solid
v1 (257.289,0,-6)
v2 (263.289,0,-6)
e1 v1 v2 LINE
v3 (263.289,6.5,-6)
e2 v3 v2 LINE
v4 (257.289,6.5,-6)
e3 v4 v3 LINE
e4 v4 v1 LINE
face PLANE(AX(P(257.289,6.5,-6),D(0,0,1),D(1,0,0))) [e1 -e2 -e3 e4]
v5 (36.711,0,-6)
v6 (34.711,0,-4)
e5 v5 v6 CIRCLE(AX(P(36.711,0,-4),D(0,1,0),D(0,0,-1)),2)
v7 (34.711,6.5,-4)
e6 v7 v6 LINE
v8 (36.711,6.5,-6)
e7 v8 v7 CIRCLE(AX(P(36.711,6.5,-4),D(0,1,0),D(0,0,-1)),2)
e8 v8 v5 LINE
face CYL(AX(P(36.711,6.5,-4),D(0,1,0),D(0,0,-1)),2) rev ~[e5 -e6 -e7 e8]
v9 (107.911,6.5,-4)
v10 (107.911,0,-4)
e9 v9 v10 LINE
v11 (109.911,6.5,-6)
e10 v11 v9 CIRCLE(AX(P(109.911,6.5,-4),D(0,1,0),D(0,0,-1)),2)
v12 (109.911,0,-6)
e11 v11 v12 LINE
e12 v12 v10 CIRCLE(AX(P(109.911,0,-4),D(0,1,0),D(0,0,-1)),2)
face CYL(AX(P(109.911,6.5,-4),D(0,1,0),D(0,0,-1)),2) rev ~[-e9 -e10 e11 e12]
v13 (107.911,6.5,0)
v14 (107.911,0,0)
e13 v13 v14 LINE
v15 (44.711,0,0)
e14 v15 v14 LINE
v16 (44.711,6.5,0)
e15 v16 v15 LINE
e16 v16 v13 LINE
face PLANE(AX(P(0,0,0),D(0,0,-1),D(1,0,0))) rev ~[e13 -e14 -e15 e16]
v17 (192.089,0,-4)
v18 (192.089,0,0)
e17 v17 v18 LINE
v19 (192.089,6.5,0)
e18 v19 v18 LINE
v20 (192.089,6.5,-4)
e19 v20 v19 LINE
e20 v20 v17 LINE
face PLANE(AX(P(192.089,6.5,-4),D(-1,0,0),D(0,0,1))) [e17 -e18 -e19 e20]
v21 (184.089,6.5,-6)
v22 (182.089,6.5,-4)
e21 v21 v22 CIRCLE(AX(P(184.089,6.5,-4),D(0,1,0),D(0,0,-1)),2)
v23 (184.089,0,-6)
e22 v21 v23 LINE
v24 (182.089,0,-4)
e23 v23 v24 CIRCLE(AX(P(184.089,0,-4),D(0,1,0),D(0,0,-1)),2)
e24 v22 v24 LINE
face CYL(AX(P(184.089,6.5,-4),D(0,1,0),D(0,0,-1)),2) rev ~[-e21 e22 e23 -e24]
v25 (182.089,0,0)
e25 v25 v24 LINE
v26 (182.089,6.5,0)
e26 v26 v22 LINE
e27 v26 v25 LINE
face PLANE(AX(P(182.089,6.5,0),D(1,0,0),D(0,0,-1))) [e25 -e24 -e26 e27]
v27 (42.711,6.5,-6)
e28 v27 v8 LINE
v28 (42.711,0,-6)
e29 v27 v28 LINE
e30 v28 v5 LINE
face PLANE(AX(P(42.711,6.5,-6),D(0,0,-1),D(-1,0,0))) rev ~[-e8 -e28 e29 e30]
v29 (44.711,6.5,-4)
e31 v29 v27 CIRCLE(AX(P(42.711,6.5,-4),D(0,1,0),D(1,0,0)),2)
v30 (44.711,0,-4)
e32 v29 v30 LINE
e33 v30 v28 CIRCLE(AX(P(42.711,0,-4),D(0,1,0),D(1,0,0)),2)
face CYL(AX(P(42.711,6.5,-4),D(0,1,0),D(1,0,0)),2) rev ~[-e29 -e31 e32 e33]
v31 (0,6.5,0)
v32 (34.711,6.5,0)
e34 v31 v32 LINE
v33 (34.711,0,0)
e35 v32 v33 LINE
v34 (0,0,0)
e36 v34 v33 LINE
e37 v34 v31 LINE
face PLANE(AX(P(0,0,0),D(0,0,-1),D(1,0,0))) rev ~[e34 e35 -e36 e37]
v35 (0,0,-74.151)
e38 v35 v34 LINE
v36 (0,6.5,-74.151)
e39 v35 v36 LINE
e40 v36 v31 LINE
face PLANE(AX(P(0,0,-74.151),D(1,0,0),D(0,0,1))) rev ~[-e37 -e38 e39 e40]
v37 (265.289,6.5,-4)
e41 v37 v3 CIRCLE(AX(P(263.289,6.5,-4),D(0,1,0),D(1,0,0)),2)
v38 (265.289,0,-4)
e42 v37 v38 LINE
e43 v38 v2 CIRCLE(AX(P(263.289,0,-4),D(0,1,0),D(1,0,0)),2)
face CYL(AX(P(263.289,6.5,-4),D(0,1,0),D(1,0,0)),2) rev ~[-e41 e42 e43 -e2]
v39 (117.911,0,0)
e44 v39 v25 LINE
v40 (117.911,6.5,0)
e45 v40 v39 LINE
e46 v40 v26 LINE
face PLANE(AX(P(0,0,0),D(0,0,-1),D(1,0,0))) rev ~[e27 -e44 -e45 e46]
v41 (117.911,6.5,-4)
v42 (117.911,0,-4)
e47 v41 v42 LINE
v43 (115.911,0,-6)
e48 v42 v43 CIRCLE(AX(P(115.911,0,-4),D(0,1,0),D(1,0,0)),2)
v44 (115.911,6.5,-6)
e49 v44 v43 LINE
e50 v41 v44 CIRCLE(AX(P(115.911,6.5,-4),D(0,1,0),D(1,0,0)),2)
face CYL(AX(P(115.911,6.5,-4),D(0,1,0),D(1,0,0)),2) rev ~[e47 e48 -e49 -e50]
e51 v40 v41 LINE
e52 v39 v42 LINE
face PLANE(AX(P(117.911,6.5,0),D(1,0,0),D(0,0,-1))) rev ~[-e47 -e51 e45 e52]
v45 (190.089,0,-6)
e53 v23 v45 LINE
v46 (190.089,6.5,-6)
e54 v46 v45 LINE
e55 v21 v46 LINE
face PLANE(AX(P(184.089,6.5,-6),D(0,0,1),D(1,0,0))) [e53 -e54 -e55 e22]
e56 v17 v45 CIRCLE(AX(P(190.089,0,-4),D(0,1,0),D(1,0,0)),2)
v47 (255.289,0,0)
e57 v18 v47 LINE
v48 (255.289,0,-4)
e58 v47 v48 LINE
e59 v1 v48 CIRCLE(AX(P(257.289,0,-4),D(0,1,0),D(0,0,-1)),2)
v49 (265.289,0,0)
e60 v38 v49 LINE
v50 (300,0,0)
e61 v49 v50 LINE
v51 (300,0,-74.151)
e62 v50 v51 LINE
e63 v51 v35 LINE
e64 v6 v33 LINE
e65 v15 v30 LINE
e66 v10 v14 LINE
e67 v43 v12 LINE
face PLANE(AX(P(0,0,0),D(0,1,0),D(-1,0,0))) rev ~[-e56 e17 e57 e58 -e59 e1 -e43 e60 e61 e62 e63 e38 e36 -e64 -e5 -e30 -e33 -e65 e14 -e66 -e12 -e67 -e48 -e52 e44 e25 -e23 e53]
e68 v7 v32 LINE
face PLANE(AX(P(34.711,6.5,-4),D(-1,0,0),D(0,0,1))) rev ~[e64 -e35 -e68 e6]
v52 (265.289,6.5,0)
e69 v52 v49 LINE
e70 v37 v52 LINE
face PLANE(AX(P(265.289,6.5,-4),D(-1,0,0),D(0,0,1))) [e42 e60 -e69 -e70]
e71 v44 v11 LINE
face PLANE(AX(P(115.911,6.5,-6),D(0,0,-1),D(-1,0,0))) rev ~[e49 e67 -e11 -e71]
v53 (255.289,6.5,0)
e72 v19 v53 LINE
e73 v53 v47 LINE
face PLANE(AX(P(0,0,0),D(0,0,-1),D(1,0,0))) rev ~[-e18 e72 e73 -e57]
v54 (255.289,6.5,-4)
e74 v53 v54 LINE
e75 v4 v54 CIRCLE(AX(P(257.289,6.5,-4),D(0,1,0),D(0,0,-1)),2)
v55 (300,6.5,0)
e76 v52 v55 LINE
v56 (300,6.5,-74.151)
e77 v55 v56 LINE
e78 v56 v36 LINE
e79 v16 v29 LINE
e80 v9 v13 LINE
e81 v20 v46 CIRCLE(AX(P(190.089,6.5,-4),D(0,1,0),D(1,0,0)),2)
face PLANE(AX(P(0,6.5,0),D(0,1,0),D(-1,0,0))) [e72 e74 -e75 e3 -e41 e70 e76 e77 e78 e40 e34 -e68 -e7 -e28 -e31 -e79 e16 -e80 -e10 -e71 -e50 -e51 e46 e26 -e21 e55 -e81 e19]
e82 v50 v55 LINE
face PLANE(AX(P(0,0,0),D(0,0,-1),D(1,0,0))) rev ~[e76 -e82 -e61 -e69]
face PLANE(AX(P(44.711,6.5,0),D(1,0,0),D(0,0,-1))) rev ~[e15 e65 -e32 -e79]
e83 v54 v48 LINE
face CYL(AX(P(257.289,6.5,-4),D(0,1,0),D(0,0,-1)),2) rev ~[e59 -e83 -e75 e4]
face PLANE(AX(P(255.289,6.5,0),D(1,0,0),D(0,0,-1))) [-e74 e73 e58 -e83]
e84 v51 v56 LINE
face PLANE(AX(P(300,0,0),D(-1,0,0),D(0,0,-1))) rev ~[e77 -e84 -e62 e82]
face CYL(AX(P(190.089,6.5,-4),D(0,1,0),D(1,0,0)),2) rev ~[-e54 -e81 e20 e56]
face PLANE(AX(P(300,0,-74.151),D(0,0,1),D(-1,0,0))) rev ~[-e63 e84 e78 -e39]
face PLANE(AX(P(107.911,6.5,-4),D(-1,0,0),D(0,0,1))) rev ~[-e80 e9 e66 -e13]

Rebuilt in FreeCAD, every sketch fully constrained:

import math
import FreeCAD as App
import Part
import Sketcher
from FreeCAD import Vector


def add_polygon(sketch, points):
    """Adds a closed chain of lines whose ends are joined by coincident constraints."""
    first, n = sketch.GeometryCount, len(points)
    for a, b in zip(points, points[1:] + points[:1]):
        sketch.addGeometry(Part.LineSegment(App.Vector(*a, 0), App.Vector(*b, 0)), False)
    for i in range(n):
        sketch.addConstraint(Sketcher.Constraint("Coincident", first + i, 2, first + (i + 1) % n, 1))

doc = App.newDocument("Part")
body = doc.addObject("PartDesign::Body", "Body")

# Sketch on XZ plane
sketch1 = body.newObject("Sketcher::SketchObject", "Sketch")
sketch1.AttachmentSupport = (doc.getObject("XZ_Plane"), [""])
sketch1.MapMode = "FlatFace"
add_polygon(sketch1, [(0, -74), (0, 0), (300, 0), (300, -74)])  # lines 0-3
sketch1.addConstraint([
    Sketcher.Constraint("Vertical", 0),
    Sketcher.Constraint("Horizontal", 1),
    Sketcher.Constraint("Vertical", 2),
    Sketcher.Constraint("Horizontal", 3),
    Sketcher.Constraint("Coincident", 0, 2, -1, 1),
    Sketcher.Constraint("DistanceX", 1, 1, 1, 2, 300.0),
    Sketcher.Constraint("DistanceY", 0, 1, 0, 2, 74.151),
])
pad1 = body.newObject("PartDesign::Pad", "Pad")
pad1.Profile = sketch1
pad1.Length = 6.5
pad1.Reversed = True

# Sketch on XZ plane
sketch2 = body.newObject("Sketcher::SketchObject", "Sketch001")
sketch2.AttachmentSupport = (doc.getObject("XZ_Plane"), [""])
sketch2.MapMode = "FlatFace"
sketch2.AttachmentOffset = App.Placement(Vector(0, 0, -6.5), App.Rotation())
sketch2.addGeometry([
    Part.LineSegment(Vector(34.7, -4, 0), Vector(34.7, 0, 0)),  # 0
    Part.LineSegment(Vector(34.7, 0, 0), Vector(44.7, 0, 0)),  # 1
    Part.LineSegment(Vector(44.7, 0, 0), Vector(44.7, -4, 0)),  # 2
    Part.ArcOfCircle(Part.Circle(Vector(42.7, -4, 0), Vector(0, 0, 1), 2), math.radians(-90), math.radians(0)),  # 3
    Part.LineSegment(Vector(42.7, -6, 0), Vector(36.7, -6, 0)),  # 4
    Part.ArcOfCircle(Part.Circle(Vector(36.7, -4, 0), Vector(0, 0, 1), 2), math.radians(180), math.radians(270)),  # 5
    Part.LineSegment(Vector(255.3, -4, 0), Vector(255.3, 0, 0)),  # 6
    Part.LineSegment(Vector(255.3, 0, 0), Vector(265.3, 0, 0)),  # 7
    Part.LineSegment(Vector(265.3, 0, 0), Vector(265.3, -4, 0)),  # 8
    Part.ArcOfCircle(Part.Circle(Vector(263.3, -4, 0), Vector(0, 0, 1), 2), math.radians(-90), math.radians(0)),  # 9
    Part.LineSegment(Vector(263.3, -6, 0), Vector(257.3, -6, 0)),  # 10
    Part.ArcOfCircle(Part.Circle(Vector(257.3, -4, 0), Vector(0, 0, 1), 2), math.radians(180), math.radians(270)),  # 11
    Part.LineSegment(Vector(182.1, -4, 0), Vector(182.1, 0, 0)),  # 12
    Part.LineSegment(Vector(182.1, 0, 0), Vector(192.1, 0, 0)),  # 13
    Part.LineSegment(Vector(192.1, 0, 0), Vector(192.1, -4, 0)),  # 14
    Part.ArcOfCircle(Part.Circle(Vector(190.1, -4, 0), Vector(0, 0, 1), 2), math.radians(-90), math.radians(0)),  # 15
    Part.LineSegment(Vector(190.1, -6, 0), Vector(184.1, -6, 0)),  # 16
    Part.ArcOfCircle(Part.Circle(Vector(184.1, -4, 0), Vector(0, 0, 1), 2), math.radians(180), math.radians(270)),  # 17
    Part.LineSegment(Vector(107.9, -4, 0), Vector(107.9, 0, 0)),  # 18
    Part.LineSegment(Vector(107.9, 0, 0), Vector(117.9, 0, 0)),  # 19
    Part.LineSegment(Vector(117.9, 0, 0), Vector(117.9, -4, 0)),  # 20
    Part.ArcOfCircle(Part.Circle(Vector(115.9, -4, 0), Vector(0, 0, 1), 2), math.radians(-90), math.radians(0)),  # 21
    Part.LineSegment(Vector(115.9, -6, 0), Vector(109.9, -6, 0)),  # 22
    Part.ArcOfCircle(Part.Circle(Vector(109.9, -4, 0), Vector(0, 0, 1), 2), math.radians(180), math.radians(270)),  # 23
], False)
sketch2.addConstraint([
    Sketcher.Constraint("Coincident", 0, 2, 1, 1),
    Sketcher.Constraint("Coincident", 1, 2, 2, 1),
    Sketcher.Constraint("Tangent", 2, 2, 3, 2),
    Sketcher.Constraint("Tangent", 3, 1, 4, 1),
    Sketcher.Constraint("Tangent", 4, 2, 5, 2),
    Sketcher.Constraint("Tangent", 5, 1, 0, 1),
    Sketcher.Constraint("Coincident", 6, 2, 7, 1),
    Sketcher.Constraint("Coincident", 7, 2, 8, 1),
    Sketcher.Constraint("Tangent", 8, 2, 9, 2),
    Sketcher.Constraint("Tangent", 9, 1, 10, 1),
    Sketcher.Constraint("Tangent", 10, 2, 11, 2),
    Sketcher.Constraint("Tangent", 11, 1, 6, 1),
    Sketcher.Constraint("Coincident", 12, 2, 13, 1),
    Sketcher.Constraint("Coincident", 13, 2, 14, 1),
    Sketcher.Constraint("Tangent", 14, 2, 15, 2),
    Sketcher.Constraint("Tangent", 15, 1, 16, 1),
    Sketcher.Constraint("Tangent", 16, 2, 17, 2),
    Sketcher.Constraint("Tangent", 17, 1, 12, 1),
    Sketcher.Constraint("Coincident", 18, 2, 19, 1),
    Sketcher.Constraint("Coincident", 19, 2, 20, 1),
    Sketcher.Constraint("Tangent", 20, 2, 21, 2),
    Sketcher.Constraint("Tangent", 21, 1, 22, 1),
    Sketcher.Constraint("Tangent", 22, 2, 23, 2),
    Sketcher.Constraint("Tangent", 23, 1, 18, 1),
    Sketcher.Constraint("Vertical", 0),
    Sketcher.Constraint("Horizontal", 1),
    Sketcher.Constraint("Vertical", 2),
    Sketcher.Constraint("Horizontal", 4),
    Sketcher.Constraint("Vertical", 6),
    Sketcher.Constraint("Horizontal", 7),
    Sketcher.Constraint("Vertical", 8),
    Sketcher.Constraint("Horizontal", 10),
    Sketcher.Constraint("Vertical", 12),
    Sketcher.Constraint("Horizontal", 13),
    Sketcher.Constraint("Vertical", 14),
    Sketcher.Constraint("Horizontal", 16),
    Sketcher.Constraint("Vertical", 18),
    Sketcher.Constraint("Horizontal", 19),
    Sketcher.Constraint("Vertical", 20),
    Sketcher.Constraint("Horizontal", 22),
    Sketcher.Constraint("Equal", 3, 5),
    Sketcher.Constraint("Equal", 5, 9),
    Sketcher.Constraint("Equal", 9, 11),
    Sketcher.Constraint("Equal", 11, 15),
    Sketcher.Constraint("Equal", 15, 17),
    Sketcher.Constraint("Equal", 17, 21),
    Sketcher.Constraint("Equal", 21, 23),
    Sketcher.Constraint("PointOnObject", 0, 2, -1),
    Sketcher.Constraint("PointOnObject", 6, 2, -1),
    Sketcher.Constraint("PointOnObject", 12, 2, -1),
    Sketcher.Constraint("PointOnObject", 18, 2, -1),
    Sketcher.Constraint("Horizontal", 5, 3, 9, 3),
    Sketcher.Constraint("Horizontal", 11, 3, 15, 3),
    Sketcher.Constraint("Horizontal", 17, 3, 21, 3),
    Sketcher.Constraint("Equal", 1, 7),
    Sketcher.Constraint("Equal", 7, 13),
    Sketcher.Constraint("Equal", 13, 19),
    Sketcher.Constraint("Radius", 3, 2.0),
    Sketcher.Constraint("DistanceX", 1, 1, 1, 2, 10.0),
    Sketcher.Constraint("DistanceY", 3, 1, -1, 1, 6.0),
    Sketcher.Constraint("DistanceX", 15, 3, 9, 3, 73.2),
    Sketcher.Constraint("DistanceX", 3, 3, 21, 3, 73.2),
    Sketcher.Constraint("DistanceX", -1, 1, 3, 3, 42.711),
    Sketcher.Constraint("DistanceX", -1, 1, 9, 3, 263.289),
])
pocket1 = body.newObject("PartDesign::Pocket", "Pocket")
pocket1.Profile = sketch2
pocket1.Type = "ThroughAll"
pocket1.Reversed = True

doc.recompute()
